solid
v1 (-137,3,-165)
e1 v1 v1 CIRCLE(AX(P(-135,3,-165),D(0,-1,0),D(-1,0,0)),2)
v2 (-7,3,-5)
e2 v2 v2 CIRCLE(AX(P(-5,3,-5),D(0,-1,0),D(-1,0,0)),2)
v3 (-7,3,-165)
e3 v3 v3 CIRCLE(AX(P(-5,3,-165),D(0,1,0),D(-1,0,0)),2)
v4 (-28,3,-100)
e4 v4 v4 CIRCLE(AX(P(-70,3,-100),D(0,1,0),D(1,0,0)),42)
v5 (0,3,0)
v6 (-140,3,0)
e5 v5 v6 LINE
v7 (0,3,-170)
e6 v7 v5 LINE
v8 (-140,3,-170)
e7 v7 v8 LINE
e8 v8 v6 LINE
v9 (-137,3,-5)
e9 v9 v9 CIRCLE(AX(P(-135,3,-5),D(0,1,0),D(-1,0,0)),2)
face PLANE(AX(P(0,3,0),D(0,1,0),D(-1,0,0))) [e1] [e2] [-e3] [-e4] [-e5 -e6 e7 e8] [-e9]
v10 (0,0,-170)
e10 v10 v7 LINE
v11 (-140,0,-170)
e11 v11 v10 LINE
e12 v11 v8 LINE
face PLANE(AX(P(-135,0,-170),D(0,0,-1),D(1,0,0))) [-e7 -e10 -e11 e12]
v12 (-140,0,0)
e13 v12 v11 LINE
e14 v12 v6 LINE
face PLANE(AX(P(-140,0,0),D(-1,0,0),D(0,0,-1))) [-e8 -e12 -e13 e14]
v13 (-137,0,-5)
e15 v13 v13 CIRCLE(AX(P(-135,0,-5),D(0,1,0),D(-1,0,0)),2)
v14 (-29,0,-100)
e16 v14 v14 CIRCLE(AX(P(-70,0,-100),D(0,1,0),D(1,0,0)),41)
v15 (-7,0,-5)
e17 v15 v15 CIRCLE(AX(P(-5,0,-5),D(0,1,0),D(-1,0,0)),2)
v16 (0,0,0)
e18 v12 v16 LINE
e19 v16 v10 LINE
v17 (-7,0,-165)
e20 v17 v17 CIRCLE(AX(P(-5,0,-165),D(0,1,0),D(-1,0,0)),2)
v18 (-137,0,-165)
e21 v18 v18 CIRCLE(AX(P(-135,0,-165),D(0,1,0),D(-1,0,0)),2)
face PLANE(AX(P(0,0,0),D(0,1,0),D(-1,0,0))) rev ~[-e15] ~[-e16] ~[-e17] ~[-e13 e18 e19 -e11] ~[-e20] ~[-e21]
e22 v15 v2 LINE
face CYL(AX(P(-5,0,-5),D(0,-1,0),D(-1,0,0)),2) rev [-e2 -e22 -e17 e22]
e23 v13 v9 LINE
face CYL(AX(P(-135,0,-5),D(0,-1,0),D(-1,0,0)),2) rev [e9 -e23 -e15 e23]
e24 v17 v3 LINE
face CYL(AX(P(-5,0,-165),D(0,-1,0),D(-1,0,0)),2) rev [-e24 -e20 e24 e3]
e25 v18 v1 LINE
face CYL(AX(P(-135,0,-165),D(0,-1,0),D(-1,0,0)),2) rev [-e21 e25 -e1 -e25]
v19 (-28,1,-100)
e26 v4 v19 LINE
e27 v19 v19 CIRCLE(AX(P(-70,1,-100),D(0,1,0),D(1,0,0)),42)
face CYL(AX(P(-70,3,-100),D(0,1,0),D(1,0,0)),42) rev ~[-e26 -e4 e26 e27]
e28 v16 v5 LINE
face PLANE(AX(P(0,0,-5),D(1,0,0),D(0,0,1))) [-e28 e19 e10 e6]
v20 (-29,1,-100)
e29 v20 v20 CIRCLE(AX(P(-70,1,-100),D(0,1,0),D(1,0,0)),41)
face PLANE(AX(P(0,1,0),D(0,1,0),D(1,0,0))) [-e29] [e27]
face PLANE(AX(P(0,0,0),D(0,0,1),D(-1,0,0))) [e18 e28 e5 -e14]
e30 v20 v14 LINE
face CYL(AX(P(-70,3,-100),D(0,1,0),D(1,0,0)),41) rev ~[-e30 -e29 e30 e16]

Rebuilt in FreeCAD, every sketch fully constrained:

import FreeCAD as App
import Part
import Sketcher
from FreeCAD import Vector


def add_polygon(sketch, points):
    """Adds a closed chain of lines whose ends are joined by coincident constraints."""
    first, n = sketch.GeometryCount, len(points)
    for a, b in zip(points, points[1:] + points[:1]):
        sketch.addGeometry(Part.LineSegment(App.Vector(*a, 0), App.Vector(*b, 0)), False)
    for i in range(n):
        sketch.addConstraint(Sketcher.Constraint("Coincident", first + i, 2, first + (i + 1) % n, 1))

doc = App.newDocument("Part")
params = doc.addObject("Spreadsheet::Sheet", "Params")
for row, (alias, value) in enumerate([
    ("sketch1_diameter", "4 mm"),
    ("sketch1_width", "140 mm"),
    ("sketch1_height", "170 mm"),
    ("pad1_length", "3 mm"),
    ("sketch2_diameter", "82 mm"),
    ("pocket1_length", "10 mm"),
    ("sketch3_diameter", "84 mm"),
    ("sketch3_diameter2", "82 mm"),
    ("pocket2_length", "2 mm"),
], start=1):
    params.set(f"A{row}", alias)
    params.set(f"B{row}", "=" + value)
    params.setAlias(f"B{row}", alias)

body = doc.addObject("PartDesign::Body", "Body")

# Sketch on XZ plane
sketch1 = body.newObject("Sketcher::SketchObject", "Sketch")
sketch1.AttachmentSupport = (doc.getObject("XZ_Plane"), [""])
sketch1.MapMode = "FlatFace"
add_polygon(sketch1, [(0, 0), (0, -170), (-140, -170), (-140, 0)])  # lines 0-3
sketch1.addGeometry(Part.Circle(Vector(-5, -5, 0), Vector(0, 0, 1), 2), False)  # 4
sketch1.addGeometry(Part.Circle(Vector(-135, -165, 0), Vector(0, 0, 1), 2), False)  # 5
sketch1.addGeometry(Part.Circle(Vector(-5, -165, 0), Vector(0, 0, 1), 2), False)  # 6
sketch1.addGeometry(Part.Circle(Vector(-135, -5, 0), Vector(0, 0, 1), 2), False)  # 7
sketch1.addConstraint([
    Sketcher.Constraint("Vertical", 0),
    Sketcher.Constraint("Horizontal", 1),
    Sketcher.Constraint("Vertical", 2),
    Sketcher.Constraint("Horizontal", 3),
    Sketcher.Constraint("Coincident", 3, 2, -1, 1),
    Sketcher.Constraint("Equal", 4, 5),
    Sketcher.Constraint("Equal", 5, 6),
    Sketcher.Constraint("Equal", 6, 7),
    Sketcher.Constraint("Horizontal", 5, 3, 6, 3),
    Sketcher.Constraint("Horizontal", 4, 3, 7, 3),
    Sketcher.Constraint("Vertical", 4, 3, 6, 3),
    Sketcher.Constraint("Vertical", 5, 3, 7, 3),
    Sketcher.Constraint("Diameter", 4, 4.0),
    Sketcher.Constraint("DistanceX", 1, 2, 1, 1, 140.0),
    Sketcher.Constraint("DistanceY", 0, 2, 0, 1, 170.0),
    Sketcher.Constraint("DistanceX", 4, 3, -1, 1, 5.0),
    Sketcher.Constraint("DistanceY", 4, 3, -1, 1, 5.0),
    Sketcher.Constraint("DistanceY", 0, 2, 6, 3, 5.0),
    Sketcher.Constraint("DistanceX", 1, 2, 5, 3, 5.0),
])
sketch1.setExpression("Constraints[16]", "Params.sketch1_diameter")
sketch1.setExpression("Constraints[17]", "Params.sketch1_width")
sketch1.setExpression("Constraints[18]", "Params.sketch1_height")
pad1 = body.newObject("PartDesign::Pad", "Pad")
pad1.Profile = sketch1
pad1.setExpression("Length", "Params.pad1_length")
pad1.Reversed = True

# Sketch on XZ plane
sketch2 = body.newObject("Sketcher::SketchObject", "Sketch001")
sketch2.AttachmentSupport = (doc.getObject("XZ_Plane"), [""])
sketch2.MapMode = "FlatFace"
sketch2.AttachmentOffset = App.Placement(Vector(0, 0, -3), App.Rotation())
sketch2.addGeometry(Part.Circle(Vector(-70, -100, 0), Vector(0, 0, 1), 41), False)
sketch2.addConstraint([
    Sketcher.Constraint("Diameter", 0, 82.0),
    Sketcher.Constraint("DistanceX", 0, 3, -1, 1, 70.0),
    Sketcher.Constraint("DistanceY", 0, 3, -1, 1, 100.0),
])
sketch2.setExpression("Constraints[0]", "Params.sketch2_diameter")
pocket1 = body.newObject("PartDesign::Pocket", "Pocket")
pocket1.Profile = sketch2
pocket1.setExpression("Length", "Params.pocket1_length")
pocket1.Reversed = True

# Sketch on XZ plane
sketch3 = body.newObject("Sketcher::SketchObject", "Sketch002")
sketch3.AttachmentSupport = (doc.getObject("XZ_Plane"), [""])
sketch3.MapMode = "FlatFace"
sketch3.AttachmentOffset = App.Placement(Vector(0, 0, -3), App.Rotation())
sketch3.addGeometry([
    Part.Circle(Vector(-70, -100, 0), Vector(0, 0, 1), 42),
    Part.Circle(Vector(-70, -100, 0), Vector(0, 0, 1), 41),
], False)
sketch3.addConstraint([
    Sketcher.Constraint("Coincident", 1, 3, 0, 3),
    Sketcher.Constraint("Diameter", 0, 84.0),
    Sketcher.Constraint("Diameter", 1, 82.0),
    Sketcher.Constraint("DistanceX", 0, 3, -1, 1, 70.0),
    Sketcher.Constraint("DistanceY", 0, 3, -1, 1, 100.0),
])
sketch3.setExpression("Constraints[1]", "Params.sketch3_diameter")
sketch3.setExpression("Constraints[2]", "Params.sketch3_diameter2")
pocket2 = body.newObject("PartDesign::Pocket", "Pocket001")
pocket2.Profile = sketch3
pocket2.setExpression("Length", "Params.pocket2_length")
pocket2.Reversed = True

doc.recompute()
